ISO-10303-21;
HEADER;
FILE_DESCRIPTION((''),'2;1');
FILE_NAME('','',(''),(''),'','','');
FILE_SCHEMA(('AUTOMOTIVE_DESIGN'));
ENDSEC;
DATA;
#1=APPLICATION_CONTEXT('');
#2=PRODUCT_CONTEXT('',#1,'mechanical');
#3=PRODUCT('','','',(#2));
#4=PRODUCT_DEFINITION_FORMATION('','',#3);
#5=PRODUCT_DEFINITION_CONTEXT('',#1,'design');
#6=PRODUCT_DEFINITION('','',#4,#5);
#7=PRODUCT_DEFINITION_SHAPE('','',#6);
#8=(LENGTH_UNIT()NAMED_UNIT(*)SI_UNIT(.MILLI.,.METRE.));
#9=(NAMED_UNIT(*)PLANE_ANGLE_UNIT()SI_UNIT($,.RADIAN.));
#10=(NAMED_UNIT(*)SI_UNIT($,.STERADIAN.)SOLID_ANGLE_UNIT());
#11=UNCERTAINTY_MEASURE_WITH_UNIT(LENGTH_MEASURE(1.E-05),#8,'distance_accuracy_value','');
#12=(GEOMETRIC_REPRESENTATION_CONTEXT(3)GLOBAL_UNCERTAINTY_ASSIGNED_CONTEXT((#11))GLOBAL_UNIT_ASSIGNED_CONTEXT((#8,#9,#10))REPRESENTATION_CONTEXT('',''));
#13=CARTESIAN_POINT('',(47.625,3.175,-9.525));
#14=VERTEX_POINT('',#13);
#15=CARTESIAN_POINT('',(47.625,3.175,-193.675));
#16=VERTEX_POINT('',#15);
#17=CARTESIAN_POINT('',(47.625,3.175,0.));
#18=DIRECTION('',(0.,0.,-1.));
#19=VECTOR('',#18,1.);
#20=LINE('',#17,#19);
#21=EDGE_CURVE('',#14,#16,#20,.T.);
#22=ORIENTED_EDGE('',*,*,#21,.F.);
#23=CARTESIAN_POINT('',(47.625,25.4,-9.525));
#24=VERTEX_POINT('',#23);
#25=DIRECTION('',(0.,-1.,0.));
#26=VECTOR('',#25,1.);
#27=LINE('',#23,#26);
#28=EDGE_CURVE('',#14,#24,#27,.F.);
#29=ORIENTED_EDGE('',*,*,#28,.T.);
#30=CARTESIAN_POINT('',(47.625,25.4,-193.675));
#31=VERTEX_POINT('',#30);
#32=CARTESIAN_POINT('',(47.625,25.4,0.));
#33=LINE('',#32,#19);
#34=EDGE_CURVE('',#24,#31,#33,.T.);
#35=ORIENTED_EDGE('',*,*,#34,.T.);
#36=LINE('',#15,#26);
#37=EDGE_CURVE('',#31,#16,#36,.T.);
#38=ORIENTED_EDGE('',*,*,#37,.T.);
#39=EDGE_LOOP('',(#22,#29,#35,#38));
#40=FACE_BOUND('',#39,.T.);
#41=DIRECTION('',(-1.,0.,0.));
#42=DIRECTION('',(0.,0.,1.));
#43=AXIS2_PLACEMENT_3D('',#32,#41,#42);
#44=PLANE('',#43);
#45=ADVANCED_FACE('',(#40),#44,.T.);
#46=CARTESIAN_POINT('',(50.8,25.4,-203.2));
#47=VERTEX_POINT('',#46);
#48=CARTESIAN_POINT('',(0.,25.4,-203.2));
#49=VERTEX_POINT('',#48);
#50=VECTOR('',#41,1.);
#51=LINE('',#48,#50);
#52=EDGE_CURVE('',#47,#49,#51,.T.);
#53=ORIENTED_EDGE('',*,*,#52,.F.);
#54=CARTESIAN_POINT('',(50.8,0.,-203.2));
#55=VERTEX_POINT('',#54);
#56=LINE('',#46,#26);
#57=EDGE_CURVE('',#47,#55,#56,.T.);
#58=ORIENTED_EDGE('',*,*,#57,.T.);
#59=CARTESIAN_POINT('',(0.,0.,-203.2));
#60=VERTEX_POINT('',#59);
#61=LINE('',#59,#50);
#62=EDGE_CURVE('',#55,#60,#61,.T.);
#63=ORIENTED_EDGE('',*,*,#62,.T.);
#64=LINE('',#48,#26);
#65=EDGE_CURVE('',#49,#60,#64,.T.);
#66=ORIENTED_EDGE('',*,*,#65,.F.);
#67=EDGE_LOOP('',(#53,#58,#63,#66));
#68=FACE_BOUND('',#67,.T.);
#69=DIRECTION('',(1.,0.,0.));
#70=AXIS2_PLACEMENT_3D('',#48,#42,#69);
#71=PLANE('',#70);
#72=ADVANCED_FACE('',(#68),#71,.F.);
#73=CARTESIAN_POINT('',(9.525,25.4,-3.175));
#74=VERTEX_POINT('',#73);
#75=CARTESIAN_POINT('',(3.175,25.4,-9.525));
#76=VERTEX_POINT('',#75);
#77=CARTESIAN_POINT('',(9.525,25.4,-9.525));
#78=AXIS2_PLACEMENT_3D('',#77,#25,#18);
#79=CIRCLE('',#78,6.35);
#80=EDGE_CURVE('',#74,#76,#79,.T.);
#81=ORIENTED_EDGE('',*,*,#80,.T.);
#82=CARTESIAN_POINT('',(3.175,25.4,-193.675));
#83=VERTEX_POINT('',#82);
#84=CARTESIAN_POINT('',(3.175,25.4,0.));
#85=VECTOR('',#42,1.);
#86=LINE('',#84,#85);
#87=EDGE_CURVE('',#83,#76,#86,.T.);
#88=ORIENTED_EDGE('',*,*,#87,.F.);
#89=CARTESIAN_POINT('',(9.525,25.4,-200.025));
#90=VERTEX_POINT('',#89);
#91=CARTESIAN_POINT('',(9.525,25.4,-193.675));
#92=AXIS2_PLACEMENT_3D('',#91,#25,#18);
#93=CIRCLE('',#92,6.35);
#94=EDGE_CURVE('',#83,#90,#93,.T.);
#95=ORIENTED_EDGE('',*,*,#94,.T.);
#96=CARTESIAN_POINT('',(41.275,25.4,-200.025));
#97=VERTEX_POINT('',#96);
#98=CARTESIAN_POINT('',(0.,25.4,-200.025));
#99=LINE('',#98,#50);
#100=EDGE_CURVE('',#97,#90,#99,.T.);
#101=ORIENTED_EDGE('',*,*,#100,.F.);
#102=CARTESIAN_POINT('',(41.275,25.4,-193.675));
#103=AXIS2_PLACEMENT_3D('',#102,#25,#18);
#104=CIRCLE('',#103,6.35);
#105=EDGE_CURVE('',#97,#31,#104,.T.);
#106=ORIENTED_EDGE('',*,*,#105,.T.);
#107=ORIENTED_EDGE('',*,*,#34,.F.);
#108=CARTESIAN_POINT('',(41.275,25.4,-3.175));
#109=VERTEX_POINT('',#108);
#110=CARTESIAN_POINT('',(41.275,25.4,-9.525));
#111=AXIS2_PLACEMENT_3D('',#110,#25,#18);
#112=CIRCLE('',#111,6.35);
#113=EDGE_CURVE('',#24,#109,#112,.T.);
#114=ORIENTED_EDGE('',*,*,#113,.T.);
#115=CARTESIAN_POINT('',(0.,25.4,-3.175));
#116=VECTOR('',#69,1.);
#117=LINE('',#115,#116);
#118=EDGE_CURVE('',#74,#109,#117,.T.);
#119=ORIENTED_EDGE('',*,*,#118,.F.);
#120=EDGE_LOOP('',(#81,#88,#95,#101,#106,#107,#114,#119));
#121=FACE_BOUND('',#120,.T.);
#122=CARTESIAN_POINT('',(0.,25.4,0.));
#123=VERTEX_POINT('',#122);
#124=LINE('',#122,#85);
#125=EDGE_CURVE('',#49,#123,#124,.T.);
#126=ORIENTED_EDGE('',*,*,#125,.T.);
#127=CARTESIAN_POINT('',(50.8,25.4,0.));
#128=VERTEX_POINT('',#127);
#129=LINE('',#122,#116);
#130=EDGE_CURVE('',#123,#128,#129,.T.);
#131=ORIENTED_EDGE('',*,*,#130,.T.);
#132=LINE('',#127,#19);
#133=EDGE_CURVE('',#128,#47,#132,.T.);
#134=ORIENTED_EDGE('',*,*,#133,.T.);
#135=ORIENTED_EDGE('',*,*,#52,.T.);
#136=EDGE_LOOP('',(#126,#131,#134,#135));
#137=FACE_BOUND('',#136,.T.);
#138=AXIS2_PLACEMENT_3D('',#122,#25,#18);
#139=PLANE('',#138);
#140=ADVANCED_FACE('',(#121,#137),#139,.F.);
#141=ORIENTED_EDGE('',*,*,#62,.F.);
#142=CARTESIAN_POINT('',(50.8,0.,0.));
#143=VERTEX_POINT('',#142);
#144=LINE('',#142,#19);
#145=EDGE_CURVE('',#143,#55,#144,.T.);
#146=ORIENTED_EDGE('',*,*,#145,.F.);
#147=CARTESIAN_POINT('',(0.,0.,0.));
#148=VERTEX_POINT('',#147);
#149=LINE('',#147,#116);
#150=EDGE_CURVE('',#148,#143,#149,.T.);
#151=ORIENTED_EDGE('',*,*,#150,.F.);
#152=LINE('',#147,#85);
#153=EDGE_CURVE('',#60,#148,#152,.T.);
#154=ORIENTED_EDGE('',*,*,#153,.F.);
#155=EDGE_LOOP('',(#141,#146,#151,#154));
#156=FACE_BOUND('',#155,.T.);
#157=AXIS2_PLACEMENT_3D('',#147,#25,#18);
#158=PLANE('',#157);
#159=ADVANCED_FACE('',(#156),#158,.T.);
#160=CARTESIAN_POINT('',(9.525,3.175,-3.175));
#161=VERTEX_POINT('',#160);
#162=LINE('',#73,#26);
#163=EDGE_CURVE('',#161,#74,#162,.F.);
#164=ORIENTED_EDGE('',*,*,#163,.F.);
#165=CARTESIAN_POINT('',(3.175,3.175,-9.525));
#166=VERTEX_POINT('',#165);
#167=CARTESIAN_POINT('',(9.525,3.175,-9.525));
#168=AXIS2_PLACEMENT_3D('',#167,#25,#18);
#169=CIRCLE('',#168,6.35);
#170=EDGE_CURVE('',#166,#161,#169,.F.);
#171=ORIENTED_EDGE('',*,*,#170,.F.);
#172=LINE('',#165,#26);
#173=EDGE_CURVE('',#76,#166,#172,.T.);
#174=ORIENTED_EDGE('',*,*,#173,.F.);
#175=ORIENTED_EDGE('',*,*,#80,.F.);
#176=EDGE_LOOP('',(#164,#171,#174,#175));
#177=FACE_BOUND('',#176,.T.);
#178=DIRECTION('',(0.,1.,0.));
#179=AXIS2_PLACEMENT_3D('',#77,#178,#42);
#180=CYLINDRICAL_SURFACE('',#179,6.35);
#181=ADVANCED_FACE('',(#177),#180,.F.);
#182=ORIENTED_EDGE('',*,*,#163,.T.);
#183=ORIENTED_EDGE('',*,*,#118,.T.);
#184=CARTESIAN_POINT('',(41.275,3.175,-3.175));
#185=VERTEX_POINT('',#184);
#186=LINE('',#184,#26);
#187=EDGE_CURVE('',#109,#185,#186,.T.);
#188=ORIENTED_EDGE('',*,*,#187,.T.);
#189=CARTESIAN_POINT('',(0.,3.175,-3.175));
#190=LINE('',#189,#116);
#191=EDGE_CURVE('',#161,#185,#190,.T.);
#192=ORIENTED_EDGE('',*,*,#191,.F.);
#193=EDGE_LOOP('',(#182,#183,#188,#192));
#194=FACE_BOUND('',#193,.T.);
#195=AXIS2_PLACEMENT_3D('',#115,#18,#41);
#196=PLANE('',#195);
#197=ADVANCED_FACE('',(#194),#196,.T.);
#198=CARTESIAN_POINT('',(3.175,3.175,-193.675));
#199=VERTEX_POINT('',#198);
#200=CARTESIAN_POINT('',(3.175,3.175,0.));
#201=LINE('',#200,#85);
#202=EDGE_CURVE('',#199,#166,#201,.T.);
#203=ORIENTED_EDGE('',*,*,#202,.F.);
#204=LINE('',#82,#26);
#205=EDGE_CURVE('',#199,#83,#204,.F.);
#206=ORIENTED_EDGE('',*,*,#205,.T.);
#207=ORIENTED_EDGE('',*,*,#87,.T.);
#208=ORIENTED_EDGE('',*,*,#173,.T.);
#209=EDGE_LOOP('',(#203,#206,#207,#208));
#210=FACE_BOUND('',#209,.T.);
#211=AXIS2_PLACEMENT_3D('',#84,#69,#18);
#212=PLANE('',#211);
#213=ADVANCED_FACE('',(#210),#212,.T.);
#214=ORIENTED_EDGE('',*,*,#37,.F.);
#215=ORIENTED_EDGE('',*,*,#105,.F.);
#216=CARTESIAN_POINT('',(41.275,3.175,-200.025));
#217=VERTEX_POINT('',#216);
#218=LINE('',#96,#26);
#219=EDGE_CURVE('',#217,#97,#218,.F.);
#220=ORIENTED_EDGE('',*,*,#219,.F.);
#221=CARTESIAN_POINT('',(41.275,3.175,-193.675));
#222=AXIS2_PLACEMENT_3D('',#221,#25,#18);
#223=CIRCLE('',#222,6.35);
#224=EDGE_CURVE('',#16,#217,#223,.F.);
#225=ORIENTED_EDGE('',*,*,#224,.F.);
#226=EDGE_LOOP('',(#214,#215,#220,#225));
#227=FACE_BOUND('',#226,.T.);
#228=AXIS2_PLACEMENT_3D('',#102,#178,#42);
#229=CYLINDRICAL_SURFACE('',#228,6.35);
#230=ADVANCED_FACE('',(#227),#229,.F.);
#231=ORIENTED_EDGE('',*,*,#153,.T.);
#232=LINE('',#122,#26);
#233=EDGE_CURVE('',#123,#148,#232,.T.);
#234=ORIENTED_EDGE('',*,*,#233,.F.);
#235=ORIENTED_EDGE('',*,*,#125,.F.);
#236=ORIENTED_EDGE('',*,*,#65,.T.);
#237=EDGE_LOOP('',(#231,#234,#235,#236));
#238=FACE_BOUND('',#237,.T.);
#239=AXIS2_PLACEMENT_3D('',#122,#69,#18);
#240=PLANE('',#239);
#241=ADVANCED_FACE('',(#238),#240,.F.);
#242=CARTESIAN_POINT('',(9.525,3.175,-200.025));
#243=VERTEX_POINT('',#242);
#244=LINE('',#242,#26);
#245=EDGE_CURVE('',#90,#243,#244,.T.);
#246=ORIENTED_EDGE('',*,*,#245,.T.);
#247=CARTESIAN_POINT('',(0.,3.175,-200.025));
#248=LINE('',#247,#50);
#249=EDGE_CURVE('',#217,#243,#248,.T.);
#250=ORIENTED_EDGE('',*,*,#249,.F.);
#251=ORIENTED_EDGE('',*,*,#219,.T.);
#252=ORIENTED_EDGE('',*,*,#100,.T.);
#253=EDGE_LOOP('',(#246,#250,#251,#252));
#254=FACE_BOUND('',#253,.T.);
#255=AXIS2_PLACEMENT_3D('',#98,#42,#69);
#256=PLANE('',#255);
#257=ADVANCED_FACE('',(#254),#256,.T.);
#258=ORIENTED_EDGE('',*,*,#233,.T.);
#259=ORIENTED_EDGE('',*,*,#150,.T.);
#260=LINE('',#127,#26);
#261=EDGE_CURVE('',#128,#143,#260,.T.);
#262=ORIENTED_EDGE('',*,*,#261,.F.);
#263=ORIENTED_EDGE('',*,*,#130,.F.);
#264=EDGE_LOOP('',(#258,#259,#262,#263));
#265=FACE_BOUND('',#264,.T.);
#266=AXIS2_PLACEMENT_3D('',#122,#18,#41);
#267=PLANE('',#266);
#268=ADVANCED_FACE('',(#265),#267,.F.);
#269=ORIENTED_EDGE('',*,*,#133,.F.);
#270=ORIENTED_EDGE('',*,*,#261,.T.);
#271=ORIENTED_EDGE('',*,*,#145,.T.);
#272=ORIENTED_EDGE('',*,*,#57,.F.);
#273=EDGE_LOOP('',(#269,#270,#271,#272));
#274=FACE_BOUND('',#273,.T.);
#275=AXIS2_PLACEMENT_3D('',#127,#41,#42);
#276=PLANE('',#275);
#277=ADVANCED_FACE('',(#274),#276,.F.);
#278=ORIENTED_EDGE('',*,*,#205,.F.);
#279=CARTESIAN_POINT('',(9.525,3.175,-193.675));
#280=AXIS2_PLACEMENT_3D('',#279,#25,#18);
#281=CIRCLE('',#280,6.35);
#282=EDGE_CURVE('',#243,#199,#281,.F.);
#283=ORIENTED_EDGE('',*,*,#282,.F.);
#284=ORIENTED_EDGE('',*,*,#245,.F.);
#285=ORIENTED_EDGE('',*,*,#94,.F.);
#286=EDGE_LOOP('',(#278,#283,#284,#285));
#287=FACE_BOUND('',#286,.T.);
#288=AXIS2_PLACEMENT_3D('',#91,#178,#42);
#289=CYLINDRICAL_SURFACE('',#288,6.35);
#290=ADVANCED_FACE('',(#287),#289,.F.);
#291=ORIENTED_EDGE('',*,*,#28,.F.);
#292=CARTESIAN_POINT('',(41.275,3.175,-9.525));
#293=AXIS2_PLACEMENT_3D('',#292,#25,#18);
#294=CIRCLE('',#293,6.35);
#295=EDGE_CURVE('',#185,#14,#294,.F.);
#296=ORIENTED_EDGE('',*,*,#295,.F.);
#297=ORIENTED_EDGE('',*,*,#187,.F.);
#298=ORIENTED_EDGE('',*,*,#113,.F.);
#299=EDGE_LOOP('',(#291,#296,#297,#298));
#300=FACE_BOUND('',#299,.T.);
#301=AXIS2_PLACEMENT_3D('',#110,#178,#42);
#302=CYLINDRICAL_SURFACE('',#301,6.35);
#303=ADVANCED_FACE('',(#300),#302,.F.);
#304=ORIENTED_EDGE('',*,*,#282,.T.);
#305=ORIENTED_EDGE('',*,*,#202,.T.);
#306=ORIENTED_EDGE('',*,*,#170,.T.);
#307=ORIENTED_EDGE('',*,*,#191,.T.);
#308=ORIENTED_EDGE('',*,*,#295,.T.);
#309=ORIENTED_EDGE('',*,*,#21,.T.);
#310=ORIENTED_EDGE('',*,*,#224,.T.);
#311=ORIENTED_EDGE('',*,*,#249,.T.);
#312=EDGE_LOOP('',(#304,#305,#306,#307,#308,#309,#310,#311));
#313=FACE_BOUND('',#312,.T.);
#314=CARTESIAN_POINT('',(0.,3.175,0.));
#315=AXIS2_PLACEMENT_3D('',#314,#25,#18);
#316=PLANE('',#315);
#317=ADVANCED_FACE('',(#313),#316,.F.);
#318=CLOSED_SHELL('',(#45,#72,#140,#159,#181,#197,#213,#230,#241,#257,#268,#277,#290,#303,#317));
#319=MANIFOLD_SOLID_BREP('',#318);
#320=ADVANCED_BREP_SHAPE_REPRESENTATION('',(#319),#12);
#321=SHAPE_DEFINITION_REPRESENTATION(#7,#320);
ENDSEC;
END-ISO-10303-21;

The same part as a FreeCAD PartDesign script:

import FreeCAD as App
import Part
import Sketcher

V = App.Vector
Q = App.Units.Quantity


def edges_at(feature, points):
    """Names of the edges that pass closest to the given points."""
    edges = feature.Shape.Edges
    near = lambda p: min(range(len(edges)), key=lambda i: edges[i].distToShape(Part.Vertex(*p))[0])
    return sorted({f"Edge{near(p) + 1}" for p in points})


def faces_at(feature, points):
    """Names of the faces that lie closest to the given points."""
    faces = feature.Shape.Faces
    near = lambda p: min(range(len(faces)), key=lambda i: faces[i].distToShape(Part.Vertex(*p))[0])
    return sorted({f"Face{near(p) + 1}" for p in points})

doc = App.newDocument("Part")
body = doc.addObject("PartDesign::Body", "Body")

sketch1 = body.newObject("Sketcher::SketchObject", "Sketch")
sketch1.AttachmentSupport = (doc.getObject("XZ_Plane"), [""])
sketch1.MapMode = "FlatFace"
sketch1.addGeometry([
    Part.LineSegment(V(0, -203, 0), V(0, 0, 0)),
    Part.LineSegment(V(0, 0, 0), V(51, 0, 0)),
    Part.LineSegment(V(51, 0, 0), V(51, -203, 0)),
    Part.LineSegment(V(51, -203, 0), V(0, -203, 0)),
], False)
sketch1.addConstraint([
    Sketcher.Constraint("Coincident", 0, 2, 1, 1),
    Sketcher.Constraint("Coincident", 1, 2, 2, 1),
    Sketcher.Constraint("Coincident", 2, 2, 3, 1),
    Sketcher.Constraint("Coincident", 3, 2, 0, 1),
    Sketcher.Constraint("Vertical", 0),
    Sketcher.Constraint("Horizontal", 1),
    Sketcher.Constraint("Vertical", 2),
    Sketcher.Constraint("Horizontal", 3),
    Sketcher.Constraint("Coincident", 0, 2, -1, 1),
    Sketcher.Constraint("DistanceX", 1, 1, 1, 2, Q("2 in")),
    Sketcher.Constraint("DistanceY", 0, 1, 0, 2, Q("8 in")),
])
pad1 = body.newObject("PartDesign::Pad", "Pad")
pad1.Profile = sketch1
pad1.Length = Q("1 in")
pad1.Reversed = True
doc.recompute()

thickness = body.newObject("PartDesign::Thickness", "Thickness")
thickness.Base = (pad1, faces_at(pad1, [(25.4, 25.4, -101.6)]))
thickness.Value = Q("0.125 in")
thickness.Reversed = True
thickness.Join = "Intersection"
doc.recompute()

fillet = body.newObject("PartDesign::Fillet", "Fillet")
fillet.Base = (thickness, edges_at(thickness, [
    (3.175, 14.287, -200.025),
    (3.175, 14.287, -3.175),
    (47.625, 14.287, -3.175),
    (47.625, 14.287, -200.025),
]))
fillet.Radius = Q("0.25 in")

doc.recompute()
